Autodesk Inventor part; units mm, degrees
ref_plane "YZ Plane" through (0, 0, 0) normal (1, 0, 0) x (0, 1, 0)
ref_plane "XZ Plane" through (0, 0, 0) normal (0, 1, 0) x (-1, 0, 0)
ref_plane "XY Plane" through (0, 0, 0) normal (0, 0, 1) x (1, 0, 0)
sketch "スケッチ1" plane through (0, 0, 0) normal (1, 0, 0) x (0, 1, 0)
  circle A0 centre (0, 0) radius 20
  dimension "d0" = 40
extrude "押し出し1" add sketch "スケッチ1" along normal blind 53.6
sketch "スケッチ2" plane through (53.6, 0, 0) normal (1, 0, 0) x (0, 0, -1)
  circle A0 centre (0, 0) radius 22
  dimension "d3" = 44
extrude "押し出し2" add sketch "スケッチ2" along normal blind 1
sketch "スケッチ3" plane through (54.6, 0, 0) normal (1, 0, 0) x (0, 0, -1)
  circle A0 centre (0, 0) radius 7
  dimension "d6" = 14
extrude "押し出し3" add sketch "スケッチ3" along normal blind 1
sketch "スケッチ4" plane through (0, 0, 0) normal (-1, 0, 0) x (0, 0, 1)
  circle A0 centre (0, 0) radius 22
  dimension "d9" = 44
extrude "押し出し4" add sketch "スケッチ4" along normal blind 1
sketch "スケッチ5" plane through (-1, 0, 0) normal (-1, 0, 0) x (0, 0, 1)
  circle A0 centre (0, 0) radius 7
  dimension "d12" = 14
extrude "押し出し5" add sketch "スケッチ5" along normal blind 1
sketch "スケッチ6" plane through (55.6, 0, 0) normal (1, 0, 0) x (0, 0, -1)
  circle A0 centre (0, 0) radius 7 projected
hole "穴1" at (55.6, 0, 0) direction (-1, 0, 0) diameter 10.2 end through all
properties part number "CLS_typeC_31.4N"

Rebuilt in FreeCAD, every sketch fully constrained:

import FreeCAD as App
import Part
import Sketcher

V = App.Vector
Q = App.Units.Quantity

doc = App.newDocument("Part")
body = doc.addObject("PartDesign::Body", "Body")

sketch1 = body.newObject("Sketcher::SketchObject", "Sketch")
sketch1.AttachmentSupport = (doc.getObject("YZ_Plane"), [""])
sketch1.MapMode = "FlatFace"
sketch1.addGeometry(Part.Circle(V(0, 0, 0), V(0, 0, 1), 20), False)
sketch1.addConstraint(Sketcher.Constraint("Coincident", 0, 3, -1, 1))
sketch1.addConstraint(Sketcher.Constraint("Diameter", 0, Q("40 mm")))
pad1 = body.newObject("PartDesign::Pad", "Pad")
pad1.Profile = sketch1
pad1.Length = 53.6

sketch2 = body.newObject("Sketcher::SketchObject", "Sketch001")
sketch2.AttachmentSupport = (doc.getObject("YZ_Plane"), [""])
sketch2.MapMode = "FlatFace"
sketch2.AttachmentOffset = App.Placement(V(0, 0, 53.6), App.Rotation())
sketch2.addGeometry(Part.Circle(V(0, 0, 0), V(0, 0, 1), 22), False)
sketch2.addConstraint(Sketcher.Constraint("Coincident", 0, 3, -1, 1))
sketch2.addConstraint(Sketcher.Constraint("Diameter", 0, Q("44 mm")))
pad2 = body.newObject("PartDesign::Pad", "Pad001")
pad2.Profile = sketch2
pad2.Length = 1

sketch3 = body.newObject("Sketcher::SketchObject", "Sketch002")
sketch3.AttachmentSupport = (doc.getObject("YZ_Plane"), [""])
sketch3.MapMode = "FlatFace"
sketch3.AttachmentOffset = App.Placement(V(0, 0, 54.6), App.Rotation())
sketch3.addGeometry(Part.Circle(V(0, 0, 0), V(0, 0, 1), 7), False)
sketch3.addConstraint(Sketcher.Constraint("Coincident", 0, 3, -1, 1))
sketch3.addConstraint(Sketcher.Constraint("Diameter", 0, Q("14 mm")))
pad3 = body.newObject("PartDesign::Pad", "Pad002")
pad3.Profile = sketch3
pad3.Length = 1

sketch4 = body.newObject("Sketcher::SketchObject", "Sketch003")
sketch4.AttachmentSupport = (doc.getObject("YZ_Plane"), [""])
sketch4.MapMode = "FlatFace"
sketch4.addGeometry(Part.Circle(V(0, 0, 0), V(0, 0, 1), 22), False)
sketch4.addConstraint(Sketcher.Constraint("Coincident", 0, 3, -1, 1))
sketch4.addConstraint(Sketcher.Constraint("Diameter", 0, Q("44 mm")))
pad4 = body.newObject("PartDesign::Pad", "Pad003")
pad4.Profile = sketch4
pad4.Length = 1
pad4.Reversed = True

sketch5 = body.newObject("Sketcher::SketchObject", "Sketch004")
sketch5.AttachmentSupport = (doc.getObject("YZ_Plane"), [""])
sketch5.MapMode = "FlatFace"
sketch5.AttachmentOffset = App.Placement(V(0, 0, -1), App.Rotation())
sketch5.addGeometry(Part.Circle(V(0, 0, 0), V(0, 0, 1), 7), False)
sketch5.addConstraint(Sketcher.Constraint("Coincident", 0, 3, -1, 1))
sketch5.addConstraint(Sketcher.Constraint("Diameter", 0, Q("14 mm")))
pad5 = body.newObject("PartDesign::Pad", "Pad004")
pad5.Profile = sketch5
pad5.Length = 1
pad5.Reversed = True

sketch6 = body.newObject("Sketcher::SketchObject", "Sketch005")
sketch6.AttachmentSupport = (doc.getObject("YZ_Plane"), [""])
sketch6.MapMode = "FlatFace"
sketch6.AttachmentOffset = App.Placement(V(0, 0, 55.6), App.Rotation())
sketch6.addGeometry(Part.Circle(V(0, 0, 0), V(0, 0, 1), 5.1), False)
sketch6.addConstraint(Sketcher.Constraint("Coincident", 0, 3, -1, 1))
sketch6.addConstraint(Sketcher.Constraint("Diameter", 0, Q("10.2 mm")))
doc.recompute()
hole = body.newObject("PartDesign::Hole", "Hole")
hole.Profile = sketch6
hole.ThreadType = "None"
hole.Diameter = 10.2
hole.DepthType = "ThroughAll"

doc.recompute()
